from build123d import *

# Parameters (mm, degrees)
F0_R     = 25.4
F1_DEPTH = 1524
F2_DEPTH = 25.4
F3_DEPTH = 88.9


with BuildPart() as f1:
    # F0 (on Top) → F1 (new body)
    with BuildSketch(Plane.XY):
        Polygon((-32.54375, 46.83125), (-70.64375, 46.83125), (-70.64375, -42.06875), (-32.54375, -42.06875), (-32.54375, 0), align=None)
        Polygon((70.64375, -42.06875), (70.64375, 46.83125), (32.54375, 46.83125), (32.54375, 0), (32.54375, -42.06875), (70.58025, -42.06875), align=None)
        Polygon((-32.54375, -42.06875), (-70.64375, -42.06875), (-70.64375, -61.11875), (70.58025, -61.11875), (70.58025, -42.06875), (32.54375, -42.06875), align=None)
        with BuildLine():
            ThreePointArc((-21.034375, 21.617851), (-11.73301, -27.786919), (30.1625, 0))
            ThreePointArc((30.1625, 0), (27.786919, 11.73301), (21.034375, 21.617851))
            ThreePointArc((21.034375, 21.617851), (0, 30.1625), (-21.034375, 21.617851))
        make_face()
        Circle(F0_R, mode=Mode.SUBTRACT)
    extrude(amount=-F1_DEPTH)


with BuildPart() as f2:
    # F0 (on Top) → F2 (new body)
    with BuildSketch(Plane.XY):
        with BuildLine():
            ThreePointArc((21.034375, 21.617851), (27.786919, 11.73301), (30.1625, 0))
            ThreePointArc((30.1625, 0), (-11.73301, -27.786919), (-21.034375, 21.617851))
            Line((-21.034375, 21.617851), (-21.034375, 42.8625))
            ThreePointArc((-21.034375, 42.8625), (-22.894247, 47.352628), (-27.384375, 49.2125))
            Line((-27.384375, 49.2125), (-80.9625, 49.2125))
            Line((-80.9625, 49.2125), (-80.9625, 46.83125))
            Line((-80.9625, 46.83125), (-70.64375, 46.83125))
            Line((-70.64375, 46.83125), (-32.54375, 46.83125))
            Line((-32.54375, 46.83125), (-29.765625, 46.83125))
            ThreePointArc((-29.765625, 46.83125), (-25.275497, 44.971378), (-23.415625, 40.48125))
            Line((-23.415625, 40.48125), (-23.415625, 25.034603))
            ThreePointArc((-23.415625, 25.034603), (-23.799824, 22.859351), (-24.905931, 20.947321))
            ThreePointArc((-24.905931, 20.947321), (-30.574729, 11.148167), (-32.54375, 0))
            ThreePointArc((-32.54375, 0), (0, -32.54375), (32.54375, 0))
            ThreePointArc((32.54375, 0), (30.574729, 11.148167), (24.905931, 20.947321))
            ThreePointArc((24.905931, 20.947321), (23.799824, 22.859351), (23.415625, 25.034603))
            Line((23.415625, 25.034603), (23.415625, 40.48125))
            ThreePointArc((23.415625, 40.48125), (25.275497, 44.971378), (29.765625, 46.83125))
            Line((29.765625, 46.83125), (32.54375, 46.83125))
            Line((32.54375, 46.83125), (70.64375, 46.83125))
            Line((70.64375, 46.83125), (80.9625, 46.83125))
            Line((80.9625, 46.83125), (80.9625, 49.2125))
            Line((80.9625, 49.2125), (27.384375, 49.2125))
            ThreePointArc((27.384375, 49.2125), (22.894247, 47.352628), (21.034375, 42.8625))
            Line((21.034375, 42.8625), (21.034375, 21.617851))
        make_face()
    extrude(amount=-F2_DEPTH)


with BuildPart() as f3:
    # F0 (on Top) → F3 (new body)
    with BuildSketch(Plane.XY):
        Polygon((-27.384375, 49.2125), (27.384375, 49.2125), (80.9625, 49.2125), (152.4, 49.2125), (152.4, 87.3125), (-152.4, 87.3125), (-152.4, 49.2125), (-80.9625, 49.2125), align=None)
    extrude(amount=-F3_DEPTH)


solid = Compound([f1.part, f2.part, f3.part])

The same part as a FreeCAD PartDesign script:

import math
import FreeCAD as App
import Part
import Sketcher

V = App.Vector
Q = App.Units.Quantity


def add_polygon(sketch, points):
    """Adds a closed chain of lines whose ends are joined by coincident constraints."""
    first, n = sketch.GeometryCount, len(points)
    for a, b in zip(points, points[1:] + points[:1]):
        sketch.addGeometry(Part.LineSegment(App.Vector(*a, 0), App.Vector(*b, 0)), False)
    for i in range(n):
        sketch.addConstraint(Sketcher.Constraint("Coincident", first + i, 2, first + (i + 1) % n, 1))

doc = App.newDocument("Part")
body = doc.addObject("PartDesign::Body", "Body")
body.AllowCompound = True

# Sketch on XY plane
sketch1 = body.newObject("Sketcher::SketchObject", "Sketch")
sketch1.AttachmentSupport = (doc.getObject("XY_Plane"), [""])
sketch1.MapMode = "FlatFace"
add_polygon(sketch1, [(-32.54, 46.83), (-70.64, 46.83), (-70.64, -61.12), (70.58, -61.12), (70.58, -42.07), (70.64, -42.07), (70.64, 46.83), (32.54, 46.83), (32.54, -42.07), (-32.54, -42.07)])  # lines 0-9
sketch1.addGeometry(Part.ArcOfCircle(Part.Circle(V(0, 0, 0), V(0, 0, 1), 30.16), math.radians(134), math.radians(360)), False)  # 10
sketch1.addGeometry(Part.ArcOfCircle(Part.Circle(V(0, 0, 0), V(0, 0, 1), 30.16), math.radians(0), math.radians(46)), False)  # 11
sketch1.addGeometry(Part.ArcOfCircle(Part.Circle(V(0, 0, 0), V(0, 0, 1), 30.16), math.radians(46), math.radians(134)), False)  # 12
sketch1.addGeometry(Part.Circle(V(0, 0, 0), V(0, 0, 1), 25.4), False)  # 13
sketch1.addConstraint(Sketcher.Constraint("Tangent", 10, 2, 11, 1))
sketch1.addConstraint(Sketcher.Constraint("Tangent", 11, 2, 12, 1))
sketch1.addConstraint(Sketcher.Constraint("Tangent", 12, 2, 10, 1))
sketch1.addConstraint(Sketcher.Constraint("Horizontal", 0))
sketch1.addConstraint(Sketcher.Constraint("Vertical", 1))
sketch1.addConstraint(Sketcher.Constraint("Horizontal", 2))
sketch1.addConstraint(Sketcher.Constraint("Vertical", 3))
sketch1.addConstraint(Sketcher.Constraint("Horizontal", 4))
sketch1.addConstraint(Sketcher.Constraint("Vertical", 5))
sketch1.addConstraint(Sketcher.Constraint("Horizontal", 6))
sketch1.addConstraint(Sketcher.Constraint("Vertical", 7))
sketch1.addConstraint(Sketcher.Constraint("Horizontal", 8))
sketch1.addConstraint(Sketcher.Constraint("Vertical", 9))
sketch1.addConstraint(Sketcher.Constraint("Coincident", 10, 3, -1, 1))
sketch1.addConstraint(Sketcher.Constraint("Coincident", 13, 3, -1, 1))
sketch1.addConstraint(Sketcher.Constraint("Symmetric", 0, 2, 5, 2, -2))
sketch1.addConstraint(Sketcher.Constraint("PointOnObject", 10, 2, -1))
sketch1.addConstraint(Sketcher.Constraint("Horizontal", 4, 2, 7, 2))
sketch1.addConstraint(Sketcher.Constraint("Horizontal", 11, 2, 12, 2))
sketch1.addConstraint(Sketcher.Constraint("Equal", 0, 6))
sketch1.addConstraint(Sketcher.Constraint("Diameter", 13, Q("2 in")))
sketch1.addConstraint(Sketcher.Constraint("DistanceX", 0, 2, 0, 1, Q("1.5 in")))
sketch1.addConstraint(Sketcher.Constraint("DistanceY", 5, 1, 5, 2, Q("3.5 in")))
sketch1.addConstraint(Sketcher.Constraint("Radius", 10, Q("1.1875 in")))
sketch1.addConstraint(Sketcher.Constraint("DistanceX", 2, 1, 2, 2, Q("5.56 in")))
sketch1.addConstraint(Sketcher.Constraint("DistanceY", 1, 2, 1, 1, Q("4.25 in")))
sketch1.addConstraint(Sketcher.Constraint("DistanceX", 8, 2, 8, 1, Q("2.5625 in")))
sketch1.addConstraint(Sketcher.Constraint("DistanceY", -1, 1, 0, 2, Q("1.84375 in")))
sketch1.addConstraint(Sketcher.Constraint("DistanceX", -1, 1, 11, 2, Q("0.828125 in")))
pad1 = body.newObject("PartDesign::Pad", "Pad")
pad1.Profile = sketch1
pad1.Length = Q("60 in")
pad1.Reversed = True
body2 = doc.addObject("PartDesign::Body", "Body001")

# Sketch on XY plane
sketch2 = body2.newObject("Sketcher::SketchObject", "Sketch001")
sketch2.AttachmentSupport = (doc.getObject("XY_Plane001"), [""])
sketch2.MapMode = "FlatFace"
sketch2.addGeometry(Part.ArcOfCircle(Part.Circle(V(0, 0, 0), V(0, 0, 1), 30.2), math.radians(0), math.radians(46)), False)
sketch2.addGeometry(Part.ArcOfCircle(Part.Circle(V(0, 0, 0), V(0, 0, 1), 30.2), math.radians(134), math.radians(360)), False)
sketch2.addGeometry(Part.LineSegment(V(-21, 21.6, 0), V(-21, 42.9, 0)), False)
sketch2.addGeometry(Part.ArcOfCircle(Part.Circle(V(-27.4, 42.9, 0), V(0, 0, 1), 6.4), math.radians(0), math.radians(90)), False)
sketch2.addGeometry(Part.LineSegment(V(-27.4, 49.2, 0), V(-81, 49.2, 0)), False)
sketch2.addGeometry(Part.LineSegment(V(-81, 49.2, 0), V(-81, 46.8, 0)), False)
sketch2.addGeometry(Part.LineSegment(V(-81, 46.8, 0), V(-29.8, 46.8, 0)), False)
sketch2.addGeometry(Part.ArcOfCircle(Part.Circle(V(-29.8, 40.5, 0), V(0, 0, 1), 6.4), math.radians(0), math.radians(90)), False)
sketch2.addGeometry(Part.LineSegment(V(-23.4, 40.5, 0), V(-23.4, 25, 0)), False)
sketch2.addGeometry(Part.ArcOfCircle(Part.Circle(V(-29.8, 25, 0), V(0, 0, 1), 6.3), math.radians(-40), math.radians(0)), False)
sketch2.addGeometry(Part.ArcOfCircle(Part.Circle(V(0, 0, 0), V(0, 0, 1), 32.5), math.radians(140), math.radians(180)), False)
sketch2.addGeometry(Part.ArcOfCircle(Part.Circle(V(0, 0, 0), V(0, 0, 1), 32.5), math.radians(180), math.radians(360)), False)
sketch2.addGeometry(Part.ArcOfCircle(Part.Circle(V(0, 0, 0), V(0, 0, 1), 32.5), math.radians(0), math.radians(40)), False)
sketch2.addGeometry(Part.ArcOfCircle(Part.Circle(V(29.8, 25, 0), V(0, 0, 1), 6.3), math.radians(180), math.radians(220)), False)
sketch2.addGeometry(Part.LineSegment(V(23.4, 25, 0), V(23.4, 40.5, 0)), False)
sketch2.addGeometry(Part.ArcOfCircle(Part.Circle(V(29.8, 40.5, 0), V(0, 0, 1), 6.4), math.radians(90), math.radians(180)), False)
sketch2.addGeometry(Part.LineSegment(V(29.8, 46.8, 0), V(81, 46.8, 0)), False)
sketch2.addGeometry(Part.LineSegment(V(81, 46.8, 0), V(81, 49.2, 0)), False)
sketch2.addGeometry(Part.LineSegment(V(81, 49.2, 0), V(27.4, 49.2, 0)), False)
sketch2.addGeometry(Part.ArcOfCircle(Part.Circle(V(27.4, 42.9, 0), V(0, 0, 1), 6.4), math.radians(90), math.radians(180)), False)
sketch2.addGeometry(Part.LineSegment(V(21, 42.9, 0), V(21, 21.6, 0)), False)
sketch2.addConstraint(Sketcher.Constraint("Tangent", 0, 1, 1, 2))
sketch2.addConstraint(Sketcher.Constraint("Coincident", 1, 1, 2, 1))
sketch2.addConstraint(Sketcher.Constraint("Tangent", 2, 2, 3, 1))
sketch2.addConstraint(Sketcher.Constraint("Tangent", 3, 2, 4, 1))
sketch2.addConstraint(Sketcher.Constraint("Coincident", 4, 2, 5, 1))
sketch2.addConstraint(Sketcher.Constraint("Coincident", 5, 2, 6, 1))
sketch2.addConstraint(Sketcher.Constraint("Tangent", 6, 2, 7, 2))
sketch2.addConstraint(Sketcher.Constraint("Tangent", 7, 1, 8, 1))
sketch2.addConstraint(Sketcher.Constraint("Tangent", 8, 2, 9, 2))
sketch2.addConstraint(Sketcher.Constraint("Tangent", 9, 1, 10, 1))
sketch2.addConstraint(Sketcher.Constraint("Tangent", 10, 2, 11, 1))
sketch2.addConstraint(Sketcher.Constraint("Tangent", 11, 2, 12, 1))
sketch2.addConstraint(Sketcher.Constraint("Tangent", 12, 2, 13, 2))
sketch2.addConstraint(Sketcher.Constraint("Tangent", 13, 1, 14, 1))
sketch2.addConstraint(Sketcher.Constraint("Tangent", 14, 2, 15, 2))
sketch2.addConstraint(Sketcher.Constraint("Tangent", 15, 1, 16, 1))
sketch2.addConstraint(Sketcher.Constraint("Coincident", 16, 2, 17, 1))
sketch2.addConstraint(Sketcher.Constraint("Coincident", 17, 2, 18, 1))
sketch2.addConstraint(Sketcher.Constraint("Tangent", 18, 2, 19, 1))
sketch2.addConstraint(Sketcher.Constraint("Tangent", 19, 2, 20, 1))
sketch2.addConstraint(Sketcher.Constraint("Coincident", 20, 2, 0, 2))
sketch2.addConstraint(Sketcher.Constraint("Vertical", 2))
sketch2.addConstraint(Sketcher.Constraint("Horizontal", 4))
sketch2.addConstraint(Sketcher.Constraint("Vertical", 5))
sketch2.addConstraint(Sketcher.Constraint("Horizontal", 6))
sketch2.addConstraint(Sketcher.Constraint("Vertical", 8))
sketch2.addConstraint(Sketcher.Constraint("Vertical", 14))
sketch2.addConstraint(Sketcher.Constraint("Horizontal", 16))
sketch2.addConstraint(Sketcher.Constraint("Vertical", 17))
sketch2.addConstraint(Sketcher.Constraint("Horizontal", 18))
sketch2.addConstraint(Sketcher.Constraint("Vertical", 20))
sketch2.addConstraint(Sketcher.Constraint("Coincident", 0, 3, -1, 1))
sketch2.addConstraint(Sketcher.Constraint("Coincident", 10, 3, -1, 1))
sketch2.addConstraint(Sketcher.Constraint("Equal", 3, 7))
sketch2.addConstraint(Sketcher.Constraint("Equal", 10, 12))
sketch2.addConstraint(Sketcher.Constraint("Equal", 9, 13))
sketch2.addConstraint(Sketcher.Constraint("Equal", 7, 15))
sketch2.addConstraint(Sketcher.Constraint("Equal", 15, 19))
sketch2.addConstraint(Sketcher.Constraint("Symmetric", 10, 2, 11, 2, -1, 1))
sketch2.addConstraint(Sketcher.Constraint("Symmetric", 7, 3, 15, 3, -2))
sketch2.addConstraint(Sketcher.Constraint("Symmetric", 3, 3, 19, 3, -2))
sketch2.addConstraint(Sketcher.Constraint("PointOnObject", 0, 1, -1))
sketch2.addConstraint(Sketcher.Constraint("PointOnObject", 10, 2, -1))
sketch2.addConstraint(Sketcher.Constraint("Horizontal", 1, 1, 20, 2))
sketch2.addConstraint(Sketcher.Constraint("Equal", 6, 16))
sketch2.addConstraint(Sketcher.Constraint("Radius", 3, Q("0.25 in")))
sketch2.addConstraint(Sketcher.Constraint("Radius", 9, Q("0.2499999 in")))
sketch2.addConstraint(Sketcher.Constraint("Radius", 0, Q("1.1875001 in")))
sketch2.addConstraint(Sketcher.Constraint("Radius", 11, Q("1.28125 in")))
sketch2.addConstraint(Sketcher.Constraint("DistanceX", 4, 2, 4, 1, Q("2.109375 in")))
sketch2.addConstraint(Sketcher.Constraint("DistanceX", 6, 1, 6, 2, Q("2.015625 in")))
sketch2.addConstraint(Sketcher.Constraint("DistanceY", 5, 2, 5, 1, Q("0.09375 in")))
sketch2.addConstraint(Sketcher.Constraint("DistanceX", 3, 3, -1, 1, Q("1.078125 in")))
sketch2.addConstraint(Sketcher.Constraint("DistanceY", -1, 1, 3, 3, Q("1.6875 in")))
pad2 = body2.newObject("PartDesign::Pad", "Pad001")
pad2.Profile = sketch2
pad2.Length = Q("1 in")
pad2.Reversed = True
body3 = doc.addObject("PartDesign::Body", "Body002")

# Sketch on XY plane
sketch3 = body3.newObject("Sketcher::SketchObject", "Sketch002")
sketch3.AttachmentSupport = (doc.getObject("XY_Plane002"), [""])
sketch3.MapMode = "FlatFace"
add_polygon(sketch3, [(152, 49), (152, 87), (-152, 87), (-152, 49)])  # lines 0-3
sketch3.addConstraint(Sketcher.Constraint("Vertical", 0))
sketch3.addConstraint(Sketcher.Constraint("Horizontal", 1))
sketch3.addConstraint(Sketcher.Constraint("Vertical", 2))
sketch3.addConstraint(Sketcher.Constraint("Horizontal", 3))
sketch3.addConstraint(Sketcher.Constraint("DistanceX", 1, 2, 1, 1, Q("12 in")))
sketch3.addConstraint(Sketcher.Constraint("DistanceY", 0, 1, 0, 2, Q("1.5 in")))
sketch3.addConstraint(Sketcher.Constraint("DistanceX", -1, 1, 0, 2, Q("6 in")))
sketch3.addConstraint(Sketcher.Constraint("DistanceY", -1, 1, 0, 2, Q("3.4375 in")))
pad3 = body3.newObject("PartDesign::Pad", "Pad002")
pad3.Profile = sketch3
pad3.Length = Q("3.5 in")
pad3.Reversed = True

doc.recompute()
